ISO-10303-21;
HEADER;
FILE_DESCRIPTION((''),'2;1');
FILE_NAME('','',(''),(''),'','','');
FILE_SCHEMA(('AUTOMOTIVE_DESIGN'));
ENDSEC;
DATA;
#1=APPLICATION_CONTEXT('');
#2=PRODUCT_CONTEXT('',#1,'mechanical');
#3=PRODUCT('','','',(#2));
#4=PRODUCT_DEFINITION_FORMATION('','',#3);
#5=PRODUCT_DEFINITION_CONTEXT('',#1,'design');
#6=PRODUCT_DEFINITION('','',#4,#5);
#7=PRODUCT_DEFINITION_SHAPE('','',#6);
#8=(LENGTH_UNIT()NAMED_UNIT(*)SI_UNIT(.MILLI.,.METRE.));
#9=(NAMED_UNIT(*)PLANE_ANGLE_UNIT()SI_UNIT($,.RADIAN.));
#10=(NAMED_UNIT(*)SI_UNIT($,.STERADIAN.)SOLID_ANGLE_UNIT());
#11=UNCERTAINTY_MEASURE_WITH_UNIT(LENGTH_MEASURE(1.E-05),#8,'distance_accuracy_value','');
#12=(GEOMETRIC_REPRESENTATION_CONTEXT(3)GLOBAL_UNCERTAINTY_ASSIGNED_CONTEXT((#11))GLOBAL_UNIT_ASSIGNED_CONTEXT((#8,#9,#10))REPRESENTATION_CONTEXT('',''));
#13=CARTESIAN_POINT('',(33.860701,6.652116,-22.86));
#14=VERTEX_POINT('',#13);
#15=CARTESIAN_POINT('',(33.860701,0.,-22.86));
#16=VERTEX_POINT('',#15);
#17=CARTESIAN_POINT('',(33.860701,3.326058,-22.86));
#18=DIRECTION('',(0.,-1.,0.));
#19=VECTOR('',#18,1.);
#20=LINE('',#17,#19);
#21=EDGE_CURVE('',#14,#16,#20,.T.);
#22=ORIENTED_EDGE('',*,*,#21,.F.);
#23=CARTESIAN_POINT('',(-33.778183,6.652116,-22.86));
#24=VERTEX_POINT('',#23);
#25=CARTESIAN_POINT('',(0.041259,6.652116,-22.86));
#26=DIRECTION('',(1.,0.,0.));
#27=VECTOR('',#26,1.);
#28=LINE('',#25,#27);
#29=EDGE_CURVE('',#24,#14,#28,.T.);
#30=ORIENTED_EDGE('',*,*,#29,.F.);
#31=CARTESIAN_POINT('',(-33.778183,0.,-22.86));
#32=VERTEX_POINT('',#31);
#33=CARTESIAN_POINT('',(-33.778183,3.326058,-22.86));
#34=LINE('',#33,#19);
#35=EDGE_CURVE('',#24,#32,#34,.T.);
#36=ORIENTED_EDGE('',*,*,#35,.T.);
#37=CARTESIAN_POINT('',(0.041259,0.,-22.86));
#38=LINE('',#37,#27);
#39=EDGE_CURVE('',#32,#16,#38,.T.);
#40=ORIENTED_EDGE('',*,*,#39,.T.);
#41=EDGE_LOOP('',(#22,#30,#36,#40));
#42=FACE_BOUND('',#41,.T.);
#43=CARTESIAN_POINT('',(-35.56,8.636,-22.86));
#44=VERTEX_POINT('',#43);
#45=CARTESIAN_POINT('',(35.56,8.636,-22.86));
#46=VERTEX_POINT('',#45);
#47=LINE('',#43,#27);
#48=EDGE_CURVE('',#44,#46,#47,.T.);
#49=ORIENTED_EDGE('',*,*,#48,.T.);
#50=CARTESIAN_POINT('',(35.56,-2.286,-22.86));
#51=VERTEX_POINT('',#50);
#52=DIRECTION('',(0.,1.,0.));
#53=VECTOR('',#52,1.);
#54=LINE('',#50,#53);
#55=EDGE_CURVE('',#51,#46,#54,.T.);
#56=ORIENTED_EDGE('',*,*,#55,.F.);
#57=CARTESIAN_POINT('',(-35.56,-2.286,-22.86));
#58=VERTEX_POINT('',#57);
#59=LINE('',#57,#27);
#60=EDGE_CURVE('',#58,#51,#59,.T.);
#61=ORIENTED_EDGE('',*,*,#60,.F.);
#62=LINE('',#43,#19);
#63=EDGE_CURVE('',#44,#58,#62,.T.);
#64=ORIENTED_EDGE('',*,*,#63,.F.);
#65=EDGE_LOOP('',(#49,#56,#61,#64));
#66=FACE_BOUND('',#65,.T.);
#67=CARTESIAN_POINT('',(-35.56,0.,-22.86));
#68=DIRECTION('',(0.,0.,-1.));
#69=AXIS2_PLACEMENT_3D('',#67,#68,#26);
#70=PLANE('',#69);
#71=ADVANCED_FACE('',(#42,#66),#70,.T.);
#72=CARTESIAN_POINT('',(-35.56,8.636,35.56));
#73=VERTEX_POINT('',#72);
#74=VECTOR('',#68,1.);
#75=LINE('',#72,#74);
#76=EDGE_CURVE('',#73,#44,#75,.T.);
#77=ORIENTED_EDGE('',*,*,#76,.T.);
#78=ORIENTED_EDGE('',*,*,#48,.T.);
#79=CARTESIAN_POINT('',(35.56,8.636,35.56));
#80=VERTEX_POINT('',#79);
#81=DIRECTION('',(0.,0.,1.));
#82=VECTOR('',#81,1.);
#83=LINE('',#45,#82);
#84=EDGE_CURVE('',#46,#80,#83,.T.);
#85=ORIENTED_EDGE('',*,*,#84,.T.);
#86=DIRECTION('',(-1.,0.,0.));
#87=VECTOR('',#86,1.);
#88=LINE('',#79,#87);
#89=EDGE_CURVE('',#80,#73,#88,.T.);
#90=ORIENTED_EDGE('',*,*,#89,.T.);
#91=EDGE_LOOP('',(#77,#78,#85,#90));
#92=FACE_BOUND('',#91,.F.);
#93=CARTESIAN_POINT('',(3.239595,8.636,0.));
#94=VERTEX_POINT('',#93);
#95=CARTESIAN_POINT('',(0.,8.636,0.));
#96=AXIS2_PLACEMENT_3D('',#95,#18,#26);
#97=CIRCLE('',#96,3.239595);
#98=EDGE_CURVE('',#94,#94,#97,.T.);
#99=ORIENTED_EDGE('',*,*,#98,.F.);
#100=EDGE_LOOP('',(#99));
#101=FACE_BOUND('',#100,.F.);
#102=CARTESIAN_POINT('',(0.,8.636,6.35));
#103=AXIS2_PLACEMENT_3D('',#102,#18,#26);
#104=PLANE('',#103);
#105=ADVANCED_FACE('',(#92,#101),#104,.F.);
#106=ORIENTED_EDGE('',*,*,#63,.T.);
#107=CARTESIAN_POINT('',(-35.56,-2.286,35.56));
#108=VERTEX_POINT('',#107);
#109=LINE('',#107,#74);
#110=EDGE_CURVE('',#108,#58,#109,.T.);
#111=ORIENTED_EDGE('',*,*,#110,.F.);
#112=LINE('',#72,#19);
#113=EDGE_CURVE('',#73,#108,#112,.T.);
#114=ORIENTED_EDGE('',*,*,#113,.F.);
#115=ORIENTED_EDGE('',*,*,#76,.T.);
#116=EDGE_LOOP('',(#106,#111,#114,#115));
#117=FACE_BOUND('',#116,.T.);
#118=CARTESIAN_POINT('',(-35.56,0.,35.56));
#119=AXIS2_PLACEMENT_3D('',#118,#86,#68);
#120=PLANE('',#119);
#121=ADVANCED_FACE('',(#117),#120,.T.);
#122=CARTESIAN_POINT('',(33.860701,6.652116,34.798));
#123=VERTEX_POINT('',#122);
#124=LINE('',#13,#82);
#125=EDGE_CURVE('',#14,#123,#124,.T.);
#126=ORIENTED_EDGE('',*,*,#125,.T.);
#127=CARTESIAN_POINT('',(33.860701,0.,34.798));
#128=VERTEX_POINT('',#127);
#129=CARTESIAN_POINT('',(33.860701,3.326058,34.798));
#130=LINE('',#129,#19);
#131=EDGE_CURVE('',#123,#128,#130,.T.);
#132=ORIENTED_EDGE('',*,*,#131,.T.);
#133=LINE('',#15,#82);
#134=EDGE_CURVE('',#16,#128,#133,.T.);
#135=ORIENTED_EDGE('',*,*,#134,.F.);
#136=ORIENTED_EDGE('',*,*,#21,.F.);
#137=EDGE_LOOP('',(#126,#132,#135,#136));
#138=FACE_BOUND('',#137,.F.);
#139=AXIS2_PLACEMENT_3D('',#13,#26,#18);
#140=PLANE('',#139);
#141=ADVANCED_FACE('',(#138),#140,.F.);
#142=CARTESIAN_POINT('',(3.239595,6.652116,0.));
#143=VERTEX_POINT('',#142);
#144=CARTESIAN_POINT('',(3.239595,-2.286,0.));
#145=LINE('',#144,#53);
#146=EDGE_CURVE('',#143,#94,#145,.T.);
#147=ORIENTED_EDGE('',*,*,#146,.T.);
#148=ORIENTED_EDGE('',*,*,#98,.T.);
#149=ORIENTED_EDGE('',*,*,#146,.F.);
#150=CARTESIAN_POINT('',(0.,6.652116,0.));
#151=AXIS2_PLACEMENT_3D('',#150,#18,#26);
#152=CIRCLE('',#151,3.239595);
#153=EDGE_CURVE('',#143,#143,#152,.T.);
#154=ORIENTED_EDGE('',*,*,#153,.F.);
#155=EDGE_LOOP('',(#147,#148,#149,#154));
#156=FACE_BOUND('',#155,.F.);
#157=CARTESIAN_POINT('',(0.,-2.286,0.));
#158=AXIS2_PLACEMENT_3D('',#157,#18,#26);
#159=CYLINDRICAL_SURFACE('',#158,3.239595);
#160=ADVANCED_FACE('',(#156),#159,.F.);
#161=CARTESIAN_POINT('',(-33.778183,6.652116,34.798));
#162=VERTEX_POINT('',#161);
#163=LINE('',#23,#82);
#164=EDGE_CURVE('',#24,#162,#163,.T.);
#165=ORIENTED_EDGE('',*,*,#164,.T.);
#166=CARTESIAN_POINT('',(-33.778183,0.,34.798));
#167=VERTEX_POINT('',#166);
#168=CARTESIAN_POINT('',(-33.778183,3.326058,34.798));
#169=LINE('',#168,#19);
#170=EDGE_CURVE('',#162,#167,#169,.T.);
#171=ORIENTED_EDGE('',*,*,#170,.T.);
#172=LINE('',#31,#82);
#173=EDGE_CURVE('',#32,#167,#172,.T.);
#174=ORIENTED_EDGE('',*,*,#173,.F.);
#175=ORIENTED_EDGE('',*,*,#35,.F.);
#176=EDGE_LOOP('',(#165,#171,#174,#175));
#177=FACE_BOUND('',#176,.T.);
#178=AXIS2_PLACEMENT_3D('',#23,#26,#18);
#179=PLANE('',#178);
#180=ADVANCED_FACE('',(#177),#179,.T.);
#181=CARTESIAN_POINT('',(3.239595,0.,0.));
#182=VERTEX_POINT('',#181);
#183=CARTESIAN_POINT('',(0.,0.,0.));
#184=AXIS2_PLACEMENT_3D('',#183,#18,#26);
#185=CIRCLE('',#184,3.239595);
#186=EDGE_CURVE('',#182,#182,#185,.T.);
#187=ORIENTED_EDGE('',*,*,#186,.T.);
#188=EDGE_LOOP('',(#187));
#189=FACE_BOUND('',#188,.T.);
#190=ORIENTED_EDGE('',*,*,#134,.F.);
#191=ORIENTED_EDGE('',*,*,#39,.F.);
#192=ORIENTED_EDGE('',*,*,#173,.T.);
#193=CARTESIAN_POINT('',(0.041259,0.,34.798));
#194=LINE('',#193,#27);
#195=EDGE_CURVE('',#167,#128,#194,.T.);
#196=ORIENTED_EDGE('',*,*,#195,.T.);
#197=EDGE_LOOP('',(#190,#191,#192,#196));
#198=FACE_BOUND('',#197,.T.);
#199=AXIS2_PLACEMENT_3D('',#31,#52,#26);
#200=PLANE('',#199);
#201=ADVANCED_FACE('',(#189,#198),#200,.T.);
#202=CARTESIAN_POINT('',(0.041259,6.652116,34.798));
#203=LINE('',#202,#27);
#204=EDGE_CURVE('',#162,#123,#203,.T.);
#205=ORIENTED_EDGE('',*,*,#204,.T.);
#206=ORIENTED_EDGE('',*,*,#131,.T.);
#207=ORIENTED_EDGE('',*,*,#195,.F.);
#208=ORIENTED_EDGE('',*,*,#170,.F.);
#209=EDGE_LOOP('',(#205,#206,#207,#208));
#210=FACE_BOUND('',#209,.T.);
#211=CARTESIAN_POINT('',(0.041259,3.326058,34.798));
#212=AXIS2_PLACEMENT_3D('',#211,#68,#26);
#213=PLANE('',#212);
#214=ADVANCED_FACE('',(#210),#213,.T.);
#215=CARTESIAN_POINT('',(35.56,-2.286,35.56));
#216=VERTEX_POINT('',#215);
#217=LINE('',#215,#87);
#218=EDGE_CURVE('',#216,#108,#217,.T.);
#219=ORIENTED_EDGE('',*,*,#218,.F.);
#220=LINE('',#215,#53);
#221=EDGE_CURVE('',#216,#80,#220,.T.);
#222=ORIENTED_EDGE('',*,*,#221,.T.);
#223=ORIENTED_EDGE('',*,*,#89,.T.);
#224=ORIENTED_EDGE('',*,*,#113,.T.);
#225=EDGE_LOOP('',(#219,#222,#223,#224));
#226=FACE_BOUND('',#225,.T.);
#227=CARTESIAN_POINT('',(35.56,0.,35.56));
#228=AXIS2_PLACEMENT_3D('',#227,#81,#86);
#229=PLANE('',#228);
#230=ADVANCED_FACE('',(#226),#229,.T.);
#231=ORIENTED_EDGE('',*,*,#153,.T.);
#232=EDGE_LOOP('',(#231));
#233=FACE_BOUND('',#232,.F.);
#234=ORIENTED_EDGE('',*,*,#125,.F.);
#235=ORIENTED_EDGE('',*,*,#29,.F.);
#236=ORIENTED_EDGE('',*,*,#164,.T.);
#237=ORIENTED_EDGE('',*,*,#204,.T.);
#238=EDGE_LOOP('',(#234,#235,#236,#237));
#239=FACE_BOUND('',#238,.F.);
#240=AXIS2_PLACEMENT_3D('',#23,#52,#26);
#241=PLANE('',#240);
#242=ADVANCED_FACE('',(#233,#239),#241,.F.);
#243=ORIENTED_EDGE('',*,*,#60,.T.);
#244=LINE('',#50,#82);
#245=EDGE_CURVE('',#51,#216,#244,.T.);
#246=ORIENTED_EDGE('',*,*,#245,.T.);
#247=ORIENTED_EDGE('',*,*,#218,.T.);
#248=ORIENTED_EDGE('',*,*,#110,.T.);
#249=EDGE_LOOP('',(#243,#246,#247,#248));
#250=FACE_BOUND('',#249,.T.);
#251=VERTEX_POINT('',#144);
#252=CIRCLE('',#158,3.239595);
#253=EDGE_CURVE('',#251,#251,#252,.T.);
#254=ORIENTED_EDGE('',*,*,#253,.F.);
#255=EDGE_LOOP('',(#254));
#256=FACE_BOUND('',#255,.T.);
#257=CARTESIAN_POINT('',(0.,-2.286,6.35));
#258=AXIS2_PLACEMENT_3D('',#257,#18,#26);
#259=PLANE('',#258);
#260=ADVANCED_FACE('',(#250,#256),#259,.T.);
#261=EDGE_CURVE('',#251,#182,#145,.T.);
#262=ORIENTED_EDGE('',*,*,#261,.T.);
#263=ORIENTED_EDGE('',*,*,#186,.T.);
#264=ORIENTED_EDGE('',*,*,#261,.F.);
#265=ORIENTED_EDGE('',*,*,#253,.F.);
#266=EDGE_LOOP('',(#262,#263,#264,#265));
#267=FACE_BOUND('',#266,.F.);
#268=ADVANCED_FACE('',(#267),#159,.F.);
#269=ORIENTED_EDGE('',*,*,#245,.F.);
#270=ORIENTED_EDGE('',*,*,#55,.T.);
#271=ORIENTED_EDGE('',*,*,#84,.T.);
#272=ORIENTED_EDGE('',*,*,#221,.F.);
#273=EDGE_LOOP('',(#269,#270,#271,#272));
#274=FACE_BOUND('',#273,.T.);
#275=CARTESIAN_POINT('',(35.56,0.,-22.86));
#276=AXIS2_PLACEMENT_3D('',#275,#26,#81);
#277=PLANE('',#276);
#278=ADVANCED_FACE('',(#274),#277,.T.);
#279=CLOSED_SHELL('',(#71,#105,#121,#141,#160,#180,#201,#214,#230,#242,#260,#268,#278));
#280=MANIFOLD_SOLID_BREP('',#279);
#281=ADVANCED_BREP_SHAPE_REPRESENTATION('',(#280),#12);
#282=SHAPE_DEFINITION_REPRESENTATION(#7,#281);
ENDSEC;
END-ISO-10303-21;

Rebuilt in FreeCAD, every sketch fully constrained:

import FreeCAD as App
import Part
import Sketcher

V = App.Vector
Q = App.Units.Quantity


def add_polygon(sketch, points):
    """Adds a closed chain of lines whose ends are joined by coincident constraints."""
    first, n = sketch.GeometryCount, len(points)
    for a, b in zip(points, points[1:] + points[:1]):
        sketch.addGeometry(Part.LineSegment(App.Vector(*a, 0), App.Vector(*b, 0)), False)
    for i in range(n):
        sketch.addConstraint(Sketcher.Constraint("Coincident", first + i, 2, first + (i + 1) % n, 1))

doc = App.newDocument("Part")
params = doc.addObject("Spreadsheet::Sheet", "Params")
for row, (alias, value) in enumerate([
    ("sketch1_width", "2.8 in"),
    ("sketch1_height", "2.3 in"),
    ("pad1_length", "0.09 in"),
    ("sketch2_width", "2.8 in"),
    ("sketch2_height", "2.3 in"),
    ("pad2_length", "0.34 in"),
    ("pocket1_length", "2.27 in"),
    ("pocket2_length", "1 in"),
], start=1):
    params.set(f"A{row}", alias)
    params.set(f"B{row}", "=" + value)
    params.setAlias(f"B{row}", alias)

body = doc.addObject("PartDesign::Body", "Body")

# Sketch on XZ plane
sketch1 = body.newObject("Sketcher::SketchObject", "Sketch")
sketch1.AttachmentSupport = (doc.getObject("XZ_Plane"), [""])
sketch1.MapMode = "FlatFace"
add_polygon(sketch1, [(36, 36), (-36, 36), (-36, -23), (36, -23)])  # lines 0-3
sketch1.addConstraint([
    Sketcher.Constraint("Horizontal", 0),
    Sketcher.Constraint("Vertical", 1),
    Sketcher.Constraint("Horizontal", 2),
    Sketcher.Constraint("Vertical", 3),
    Sketcher.Constraint("DistanceX", 0, 2, 0, 1, Q("2.8 in")),
    Sketcher.Constraint("DistanceY", 1, 2, 1, 1, Q("2.3 in")),
    Sketcher.Constraint("DistanceX", 0, 2, -1, 1, Q("1.4 in")),
    Sketcher.Constraint("DistanceY", -1, 1, 0, 2, Q("1.4 in")),
])
sketch1.setExpression("Constraints[8]", "Params.sketch1_width")
sketch1.setExpression("Constraints[9]", "Params.sketch1_height")
pad1 = body.newObject("PartDesign::Pad", "Pad")
pad1.Profile = sketch1
pad1.setExpression("Length", "Params.pad1_length")

# Sketch on XZ plane
sketch2 = body.newObject("Sketcher::SketchObject", "Sketch001")
sketch2.AttachmentSupport = (doc.getObject("XZ_Plane"), [""])
sketch2.MapMode = "FlatFace"
add_polygon(sketch2, [(36, 36), (-36, 36), (-36, -23), (36, -23)])  # lines 0-3
sketch2.addConstraint([
    Sketcher.Constraint("Horizontal", 0),
    Sketcher.Constraint("Vertical", 1),
    Sketcher.Constraint("Horizontal", 2),
    Sketcher.Constraint("Vertical", 3),
    Sketcher.Constraint("DistanceX", 0, 2, 0, 1, Q("2.8 in")),
    Sketcher.Constraint("DistanceY", 1, 2, 1, 1, Q("2.3 in")),
    Sketcher.Constraint("DistanceX", 0, 2, -1, 1, Q("1.4 in")),
    Sketcher.Constraint("DistanceY", -1, 1, 0, 2, Q("1.4 in")),
])
sketch2.setExpression("Constraints[8]", "Params.sketch2_width")
sketch2.setExpression("Constraints[9]", "Params.sketch2_height")
pad2 = body.newObject("PartDesign::Pad", "Pad001")
pad2.Profile = sketch2
pad2.setExpression("Length", "Params.pad2_length")
pad2.Reversed = True

# Sketch on XY plane
sketch3 = body.newObject("Sketcher::SketchObject", "Sketch002")
sketch3.AttachmentSupport = (doc.getObject("XY_Plane"), [""])
sketch3.MapMode = "FlatFace"
sketch3.AttachmentOffset = App.Placement(V(0, 0, -0.9 * 25.4), App.Rotation())
add_polygon(sketch3, [(-34, 0), (-34, 7), (34, 7), (34, 0)])  # lines 0-3
sketch3.addConstraint([
    Sketcher.Constraint("Vertical", 0),
    Sketcher.Constraint("Horizontal", 1),
    Sketcher.Constraint("Vertical", 2),
    Sketcher.Constraint("Horizontal", 3),
    Sketcher.Constraint("PointOnObject", 2, 2, -1),
    Sketcher.Constraint("DistanceX", -1, 1, 1, 2, 33.860701),
    Sketcher.Constraint("DistanceX", 1, 1, 1, 2, 67.638885),
    Sketcher.Constraint("DistanceY", 0, 1, 0, 2, 6.652117),
])
pocket1 = body.newObject("PartDesign::Pocket", "Pocket")
pocket1.Profile = sketch3
pocket1.setExpression("Length", "Params.pocket1_length")
pocket1.Reversed = True

# Sketch on XZ plane
sketch4 = body.newObject("Sketcher::SketchObject", "Sketch003")
sketch4.AttachmentSupport = (doc.getObject("XZ_Plane"), [""])
sketch4.MapMode = "FlatFace"
sketch4.AttachmentOffset = App.Placement(V(0, 0, 0.09 * 25.4), App.Rotation())
sketch4.addGeometry(Part.Circle(V(0, 0, 0), V(0, 0, 1), 3.2), False)
sketch4.addConstraint([
    Sketcher.Constraint("Coincident", 0, 3, -1, 1),
    Sketcher.Constraint("Diameter", 0, 6.47919),
])
pocket2 = body.newObject("PartDesign::Pocket", "Pocket001")
pocket2.Profile = sketch4
pocket2.setExpression("Length", "Params.pocket2_length")

doc.recompute()
